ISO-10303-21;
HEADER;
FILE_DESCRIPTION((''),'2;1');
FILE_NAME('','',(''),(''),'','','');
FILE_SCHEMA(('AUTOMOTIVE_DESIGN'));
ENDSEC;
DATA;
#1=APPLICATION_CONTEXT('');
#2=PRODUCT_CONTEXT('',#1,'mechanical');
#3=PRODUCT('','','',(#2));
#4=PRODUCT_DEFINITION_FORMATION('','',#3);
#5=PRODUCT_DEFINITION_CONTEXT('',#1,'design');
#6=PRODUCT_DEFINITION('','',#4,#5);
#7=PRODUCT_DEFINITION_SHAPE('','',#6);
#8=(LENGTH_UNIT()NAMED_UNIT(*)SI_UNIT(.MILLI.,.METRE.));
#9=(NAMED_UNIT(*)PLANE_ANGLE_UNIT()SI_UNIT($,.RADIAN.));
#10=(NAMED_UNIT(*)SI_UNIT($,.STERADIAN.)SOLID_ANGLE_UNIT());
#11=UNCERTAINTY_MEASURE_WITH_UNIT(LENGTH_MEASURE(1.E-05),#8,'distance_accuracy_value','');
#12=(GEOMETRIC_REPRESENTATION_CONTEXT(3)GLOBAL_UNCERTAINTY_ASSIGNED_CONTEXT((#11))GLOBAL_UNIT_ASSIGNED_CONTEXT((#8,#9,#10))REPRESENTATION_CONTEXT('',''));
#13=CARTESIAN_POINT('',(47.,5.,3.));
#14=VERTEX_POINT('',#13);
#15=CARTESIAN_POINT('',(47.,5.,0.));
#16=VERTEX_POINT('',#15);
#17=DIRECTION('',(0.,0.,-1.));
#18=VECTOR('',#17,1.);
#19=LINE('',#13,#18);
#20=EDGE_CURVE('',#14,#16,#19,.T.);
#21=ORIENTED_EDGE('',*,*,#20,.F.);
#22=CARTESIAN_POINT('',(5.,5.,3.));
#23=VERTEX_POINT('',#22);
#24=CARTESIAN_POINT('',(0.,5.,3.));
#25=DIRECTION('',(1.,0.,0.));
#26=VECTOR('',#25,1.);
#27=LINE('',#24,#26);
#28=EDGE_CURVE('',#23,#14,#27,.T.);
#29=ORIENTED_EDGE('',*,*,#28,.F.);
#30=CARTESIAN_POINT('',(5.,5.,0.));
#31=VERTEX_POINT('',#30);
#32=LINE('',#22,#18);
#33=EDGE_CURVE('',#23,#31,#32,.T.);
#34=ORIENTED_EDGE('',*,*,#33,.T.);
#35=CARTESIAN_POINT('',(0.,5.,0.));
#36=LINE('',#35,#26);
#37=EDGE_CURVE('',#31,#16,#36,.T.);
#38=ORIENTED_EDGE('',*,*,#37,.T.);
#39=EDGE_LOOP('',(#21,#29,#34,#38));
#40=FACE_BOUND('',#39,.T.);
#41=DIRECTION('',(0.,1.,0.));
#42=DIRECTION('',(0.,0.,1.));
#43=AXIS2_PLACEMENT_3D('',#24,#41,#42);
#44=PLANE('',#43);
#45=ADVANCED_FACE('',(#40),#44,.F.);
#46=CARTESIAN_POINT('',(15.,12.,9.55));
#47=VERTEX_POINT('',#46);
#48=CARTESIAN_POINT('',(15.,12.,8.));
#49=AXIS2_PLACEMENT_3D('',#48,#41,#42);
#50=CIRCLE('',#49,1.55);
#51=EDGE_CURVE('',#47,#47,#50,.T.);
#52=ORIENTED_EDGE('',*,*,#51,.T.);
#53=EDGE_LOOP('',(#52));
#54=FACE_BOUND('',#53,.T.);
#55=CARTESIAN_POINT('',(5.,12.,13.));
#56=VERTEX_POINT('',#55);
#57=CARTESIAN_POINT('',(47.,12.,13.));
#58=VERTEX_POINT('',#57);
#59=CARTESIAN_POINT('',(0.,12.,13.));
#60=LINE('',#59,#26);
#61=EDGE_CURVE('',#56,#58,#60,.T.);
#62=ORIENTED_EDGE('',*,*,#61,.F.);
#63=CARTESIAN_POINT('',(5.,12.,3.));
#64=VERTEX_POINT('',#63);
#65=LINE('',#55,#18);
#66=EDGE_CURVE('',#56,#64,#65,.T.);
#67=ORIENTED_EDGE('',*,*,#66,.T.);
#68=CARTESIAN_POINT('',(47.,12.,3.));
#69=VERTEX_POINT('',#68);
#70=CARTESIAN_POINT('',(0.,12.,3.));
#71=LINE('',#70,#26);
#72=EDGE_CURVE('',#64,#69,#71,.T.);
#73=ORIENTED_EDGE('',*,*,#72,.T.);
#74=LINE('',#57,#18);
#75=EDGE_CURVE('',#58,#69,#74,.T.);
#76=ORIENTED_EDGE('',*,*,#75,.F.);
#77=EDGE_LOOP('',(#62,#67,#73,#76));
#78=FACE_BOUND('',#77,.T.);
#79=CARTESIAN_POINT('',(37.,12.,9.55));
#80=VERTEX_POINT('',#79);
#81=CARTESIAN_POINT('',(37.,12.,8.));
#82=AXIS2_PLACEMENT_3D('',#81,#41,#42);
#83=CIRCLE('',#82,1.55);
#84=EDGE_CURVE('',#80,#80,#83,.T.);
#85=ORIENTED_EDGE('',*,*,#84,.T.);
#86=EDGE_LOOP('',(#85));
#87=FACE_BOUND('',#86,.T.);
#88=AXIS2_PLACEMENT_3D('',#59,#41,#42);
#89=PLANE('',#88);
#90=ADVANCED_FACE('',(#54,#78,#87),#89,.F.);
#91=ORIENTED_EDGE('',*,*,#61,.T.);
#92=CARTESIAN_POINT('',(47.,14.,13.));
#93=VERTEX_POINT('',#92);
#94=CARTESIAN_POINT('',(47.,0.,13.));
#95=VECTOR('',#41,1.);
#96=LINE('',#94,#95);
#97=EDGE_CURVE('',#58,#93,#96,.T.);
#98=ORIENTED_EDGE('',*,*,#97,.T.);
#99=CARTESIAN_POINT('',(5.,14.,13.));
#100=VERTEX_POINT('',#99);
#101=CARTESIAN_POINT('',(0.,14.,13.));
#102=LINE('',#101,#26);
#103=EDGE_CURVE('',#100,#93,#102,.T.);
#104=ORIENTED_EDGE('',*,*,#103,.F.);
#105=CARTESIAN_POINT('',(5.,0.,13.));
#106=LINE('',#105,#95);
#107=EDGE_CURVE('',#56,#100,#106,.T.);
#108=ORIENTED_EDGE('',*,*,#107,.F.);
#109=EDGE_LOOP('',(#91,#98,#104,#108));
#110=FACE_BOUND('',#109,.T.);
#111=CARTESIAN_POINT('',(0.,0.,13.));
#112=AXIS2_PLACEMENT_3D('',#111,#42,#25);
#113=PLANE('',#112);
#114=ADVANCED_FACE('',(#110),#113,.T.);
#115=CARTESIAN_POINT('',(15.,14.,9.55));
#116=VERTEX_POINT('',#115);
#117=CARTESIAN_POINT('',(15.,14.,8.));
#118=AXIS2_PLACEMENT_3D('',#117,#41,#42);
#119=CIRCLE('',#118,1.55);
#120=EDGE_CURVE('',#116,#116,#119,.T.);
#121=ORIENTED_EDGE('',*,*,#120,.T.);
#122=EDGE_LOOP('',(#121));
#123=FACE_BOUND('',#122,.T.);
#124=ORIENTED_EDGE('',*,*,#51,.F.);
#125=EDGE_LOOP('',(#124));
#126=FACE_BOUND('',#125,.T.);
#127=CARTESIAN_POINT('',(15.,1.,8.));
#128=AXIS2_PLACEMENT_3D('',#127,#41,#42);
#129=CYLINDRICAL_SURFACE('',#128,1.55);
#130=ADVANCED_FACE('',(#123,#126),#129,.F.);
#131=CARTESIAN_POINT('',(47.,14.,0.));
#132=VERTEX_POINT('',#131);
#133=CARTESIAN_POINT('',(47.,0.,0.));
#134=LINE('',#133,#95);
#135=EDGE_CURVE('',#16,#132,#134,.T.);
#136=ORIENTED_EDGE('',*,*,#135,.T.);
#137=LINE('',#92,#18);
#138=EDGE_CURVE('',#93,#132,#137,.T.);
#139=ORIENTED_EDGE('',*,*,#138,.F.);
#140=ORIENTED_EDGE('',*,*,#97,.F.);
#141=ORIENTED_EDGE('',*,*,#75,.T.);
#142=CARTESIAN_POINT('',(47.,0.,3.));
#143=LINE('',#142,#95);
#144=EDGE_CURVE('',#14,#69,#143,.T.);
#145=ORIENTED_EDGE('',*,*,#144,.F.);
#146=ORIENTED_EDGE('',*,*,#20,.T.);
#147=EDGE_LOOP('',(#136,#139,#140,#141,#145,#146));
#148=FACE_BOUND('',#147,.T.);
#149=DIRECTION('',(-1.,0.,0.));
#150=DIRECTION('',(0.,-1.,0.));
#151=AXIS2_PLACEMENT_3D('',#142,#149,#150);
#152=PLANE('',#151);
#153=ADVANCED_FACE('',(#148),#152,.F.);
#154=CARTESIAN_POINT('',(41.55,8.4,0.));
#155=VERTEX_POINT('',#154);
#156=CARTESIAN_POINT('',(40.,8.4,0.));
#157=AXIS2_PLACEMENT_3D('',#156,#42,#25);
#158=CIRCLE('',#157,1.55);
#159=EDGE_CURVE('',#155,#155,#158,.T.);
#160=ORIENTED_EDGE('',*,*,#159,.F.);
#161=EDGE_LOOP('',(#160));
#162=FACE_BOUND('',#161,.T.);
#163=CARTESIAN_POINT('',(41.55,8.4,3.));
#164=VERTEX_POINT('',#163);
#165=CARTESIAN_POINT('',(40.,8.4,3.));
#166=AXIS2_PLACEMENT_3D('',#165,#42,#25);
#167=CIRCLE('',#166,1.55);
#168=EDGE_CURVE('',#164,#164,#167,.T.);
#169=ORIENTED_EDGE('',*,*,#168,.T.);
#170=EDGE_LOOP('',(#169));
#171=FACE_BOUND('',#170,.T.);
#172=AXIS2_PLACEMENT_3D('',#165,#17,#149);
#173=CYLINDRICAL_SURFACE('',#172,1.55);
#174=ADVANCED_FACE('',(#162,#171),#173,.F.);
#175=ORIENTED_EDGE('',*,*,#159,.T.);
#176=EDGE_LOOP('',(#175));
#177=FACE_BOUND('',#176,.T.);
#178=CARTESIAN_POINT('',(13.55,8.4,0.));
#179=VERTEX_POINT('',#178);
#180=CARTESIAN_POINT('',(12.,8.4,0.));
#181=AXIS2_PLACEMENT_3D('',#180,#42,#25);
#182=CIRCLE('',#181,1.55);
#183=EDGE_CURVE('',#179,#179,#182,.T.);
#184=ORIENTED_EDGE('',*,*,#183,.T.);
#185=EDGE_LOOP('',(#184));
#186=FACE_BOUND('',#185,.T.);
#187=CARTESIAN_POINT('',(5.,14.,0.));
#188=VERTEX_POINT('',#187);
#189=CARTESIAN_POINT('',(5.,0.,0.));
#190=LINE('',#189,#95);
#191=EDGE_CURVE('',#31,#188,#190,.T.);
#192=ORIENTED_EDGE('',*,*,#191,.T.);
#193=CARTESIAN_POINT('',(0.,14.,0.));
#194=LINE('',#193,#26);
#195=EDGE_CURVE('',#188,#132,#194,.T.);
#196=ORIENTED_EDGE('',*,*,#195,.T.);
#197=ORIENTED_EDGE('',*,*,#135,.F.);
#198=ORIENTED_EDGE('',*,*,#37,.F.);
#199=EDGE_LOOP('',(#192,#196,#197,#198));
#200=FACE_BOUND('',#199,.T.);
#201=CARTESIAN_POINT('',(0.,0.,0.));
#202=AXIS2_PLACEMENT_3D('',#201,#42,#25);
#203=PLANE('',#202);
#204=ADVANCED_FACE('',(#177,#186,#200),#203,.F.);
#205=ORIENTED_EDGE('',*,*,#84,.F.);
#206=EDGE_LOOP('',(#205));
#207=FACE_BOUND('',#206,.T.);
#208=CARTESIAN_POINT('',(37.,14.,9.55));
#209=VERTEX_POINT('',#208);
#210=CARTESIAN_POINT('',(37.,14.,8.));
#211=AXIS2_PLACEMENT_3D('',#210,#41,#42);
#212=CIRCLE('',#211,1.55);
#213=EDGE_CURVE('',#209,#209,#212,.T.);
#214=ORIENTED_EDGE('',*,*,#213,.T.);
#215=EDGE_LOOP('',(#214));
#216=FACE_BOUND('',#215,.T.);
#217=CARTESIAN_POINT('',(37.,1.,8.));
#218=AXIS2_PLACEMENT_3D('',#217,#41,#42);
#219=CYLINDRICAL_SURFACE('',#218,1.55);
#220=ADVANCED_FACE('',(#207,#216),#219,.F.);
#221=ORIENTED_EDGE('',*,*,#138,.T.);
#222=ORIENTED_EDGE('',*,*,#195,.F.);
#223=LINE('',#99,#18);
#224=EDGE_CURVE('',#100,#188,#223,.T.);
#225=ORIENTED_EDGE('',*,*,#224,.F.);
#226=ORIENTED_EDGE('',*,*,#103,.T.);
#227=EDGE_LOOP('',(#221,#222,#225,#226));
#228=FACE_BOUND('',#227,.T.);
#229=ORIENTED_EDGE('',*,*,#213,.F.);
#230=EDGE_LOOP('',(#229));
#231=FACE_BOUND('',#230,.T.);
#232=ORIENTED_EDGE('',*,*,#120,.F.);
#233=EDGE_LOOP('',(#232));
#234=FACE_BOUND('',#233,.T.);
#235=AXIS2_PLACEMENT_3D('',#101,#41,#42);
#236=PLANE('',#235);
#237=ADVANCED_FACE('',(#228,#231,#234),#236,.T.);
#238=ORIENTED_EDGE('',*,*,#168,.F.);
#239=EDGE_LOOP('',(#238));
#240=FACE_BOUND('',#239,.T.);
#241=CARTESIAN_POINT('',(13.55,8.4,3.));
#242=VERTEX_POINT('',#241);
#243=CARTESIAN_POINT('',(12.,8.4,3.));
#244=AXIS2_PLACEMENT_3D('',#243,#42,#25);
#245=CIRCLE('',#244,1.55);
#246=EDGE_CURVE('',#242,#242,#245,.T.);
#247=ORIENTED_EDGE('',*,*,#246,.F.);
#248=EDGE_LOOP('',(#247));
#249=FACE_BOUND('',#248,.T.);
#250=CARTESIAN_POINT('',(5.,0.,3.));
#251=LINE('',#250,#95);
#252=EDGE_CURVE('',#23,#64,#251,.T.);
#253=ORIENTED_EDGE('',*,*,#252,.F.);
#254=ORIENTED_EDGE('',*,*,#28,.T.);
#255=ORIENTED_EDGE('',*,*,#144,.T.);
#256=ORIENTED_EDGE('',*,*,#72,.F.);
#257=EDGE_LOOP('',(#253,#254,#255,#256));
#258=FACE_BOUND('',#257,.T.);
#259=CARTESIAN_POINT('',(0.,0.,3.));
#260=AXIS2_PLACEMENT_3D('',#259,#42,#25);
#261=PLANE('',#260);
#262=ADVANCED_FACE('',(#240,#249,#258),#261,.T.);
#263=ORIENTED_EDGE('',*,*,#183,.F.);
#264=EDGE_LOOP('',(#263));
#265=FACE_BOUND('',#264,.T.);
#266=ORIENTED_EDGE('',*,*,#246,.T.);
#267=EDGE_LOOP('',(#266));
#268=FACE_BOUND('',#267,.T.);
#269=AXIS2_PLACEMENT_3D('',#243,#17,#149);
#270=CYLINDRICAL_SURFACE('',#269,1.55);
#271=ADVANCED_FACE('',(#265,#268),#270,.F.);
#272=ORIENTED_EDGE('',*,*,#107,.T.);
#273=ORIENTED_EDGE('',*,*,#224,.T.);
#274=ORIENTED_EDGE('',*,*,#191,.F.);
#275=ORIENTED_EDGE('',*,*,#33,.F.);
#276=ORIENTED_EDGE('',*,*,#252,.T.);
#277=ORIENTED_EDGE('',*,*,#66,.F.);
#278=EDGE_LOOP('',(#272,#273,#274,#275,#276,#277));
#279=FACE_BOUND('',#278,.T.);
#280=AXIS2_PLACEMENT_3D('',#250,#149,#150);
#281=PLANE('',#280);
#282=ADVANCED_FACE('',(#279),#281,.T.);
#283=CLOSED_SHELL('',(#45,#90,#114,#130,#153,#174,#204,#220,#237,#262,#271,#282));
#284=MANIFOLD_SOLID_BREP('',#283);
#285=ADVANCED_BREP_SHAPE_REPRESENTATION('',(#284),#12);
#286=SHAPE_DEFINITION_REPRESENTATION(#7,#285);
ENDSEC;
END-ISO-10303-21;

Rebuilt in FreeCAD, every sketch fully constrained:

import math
import FreeCAD as App
import Part
import Sketcher
Q = App.Units.Quantity

doc = App.newDocument("Part")
params = doc.addObject("Spreadsheet::Sheet", "Params")
for row, (alias, value) in enumerate([
    ("sketch1_diameter", "3.1 mm"),
    ("sketch1_width", "42 mm"),
    ("sketch1_height", "7 mm"),
    ("pad1_length", "3 mm"),
    ("sketch2_width", "42 mm"),
    ("sketch2_height", "2 mm"),
    ("pad2_length", "13 mm"),
    ("sketch3_radius", "1.55 mm"),
    ("pocket1_length", "13 mm"),
], start=1):
    params.set(f"A{row}", alias)
    params.set(f"B{row}", "=" + value)
    params.setAlias(f"B{row}", alias)

body = doc.addObject("PartDesign::Body", "Body")

# Sketch on XY plane
sketch1 = body.newObject("Sketcher::SketchObject", "Sketch")
sketch1.AttachmentSupport = (doc.getObject("XY_Plane"), [""])
sketch1.MapMode = "FlatFace"
sketch1.addGeometry([
    Part.LineSegment(App.Vector(5, 12, 0), App.Vector(5, 5, 0)),  # 0
    Part.LineSegment(App.Vector(5, 5, 0), App.Vector(47, 5, 0)),  # 1
    Part.LineSegment(App.Vector(47, 5, 0), App.Vector(47, 12, 0)),  # 2
    Part.LineSegment(App.Vector(47, 12, 0), App.Vector(5, 12, 0)),  # 3
    Part.Circle(App.Vector(12, 8.4, 0), App.Vector(0, 0, 1), 1.6),  # 4
    Part.Circle(App.Vector(40, 8.4, 0), App.Vector(0, 0, 1), 1.6),  # 5
], False)
sketch1.addConstraint([
    Sketcher.Constraint("Coincident", 0, 2, 1, 1),
    Sketcher.Constraint("Coincident", 1, 2, 2, 1),
    Sketcher.Constraint("Coincident", 2, 2, 3, 1),
    Sketcher.Constraint("Coincident", 3, 2, 0, 1),
    Sketcher.Constraint("Vertical", 0),
    Sketcher.Constraint("Horizontal", 1),
    Sketcher.Constraint("Vertical", 2),
    Sketcher.Constraint("Horizontal", 3),
    Sketcher.Constraint("Equal", 4, 5),
    Sketcher.Constraint("Horizontal", 4, 3, 5, 3),
    Sketcher.Constraint("Diameter", 4, Q("3.1 mm")),
    Sketcher.Constraint("DistanceX", 1, 1, 1, 2, Q("42 mm")),
    Sketcher.Constraint("DistanceY", 0, 2, 0, 1, Q("7 mm")),
    Sketcher.Constraint("DistanceX", -1, 1, 4, 3, Q("12 mm")),
    Sketcher.Constraint("DistanceX", -1, 1, 5, 3, Q("40 mm")),
    Sketcher.Constraint("DistanceX", -1, 1, 0, 2, Q("5 mm")),
    Sketcher.Constraint("DistanceY", -1, 1, 0, 2, Q("5 mm")),
    Sketcher.Constraint("DistanceY", -1, 1, 4, 3, Q("8.4 mm")),
])
sketch1.setExpression("Constraints[10]", "Params.sketch1_diameter")
sketch1.setExpression("Constraints[11]", "Params.sketch1_width")
sketch1.setExpression("Constraints[12]", "Params.sketch1_height")
pad1 = body.newObject("PartDesign::Pad", "Pad")
pad1.Profile = sketch1
pad1.setExpression("Length", "Params.pad1_length")

# Sketch on XY plane
sketch2 = body.newObject("Sketcher::SketchObject", "Sketch001")
sketch2.AttachmentSupport = (doc.getObject("XY_Plane"), [""])
sketch2.MapMode = "FlatFace"
sketch2.addGeometry([
    Part.LineSegment(App.Vector(5, 14, 0), App.Vector(5, 12, 0)),
    Part.LineSegment(App.Vector(5, 12, 0), App.Vector(47, 12, 0)),
    Part.LineSegment(App.Vector(47, 12, 0), App.Vector(47, 14, 0)),
    Part.LineSegment(App.Vector(47, 14, 0), App.Vector(5, 14, 0)),
], False)
sketch2.addConstraint([
    Sketcher.Constraint("Coincident", 0, 2, 1, 1),
    Sketcher.Constraint("Coincident", 1, 2, 2, 1),
    Sketcher.Constraint("Coincident", 2, 2, 3, 1),
    Sketcher.Constraint("Coincident", 3, 2, 0, 1),
    Sketcher.Constraint("Vertical", 0),
    Sketcher.Constraint("Horizontal", 1),
    Sketcher.Constraint("Vertical", 2),
    Sketcher.Constraint("Horizontal", 3),
    Sketcher.Constraint("DistanceX", 1, 1, 1, 2, Q("42 mm")),
    Sketcher.Constraint("DistanceY", 0, 2, 0, 1, Q("2 mm")),
    Sketcher.Constraint("DistanceX", -1, 1, 0, 2, Q("5 mm")),
    Sketcher.Constraint("DistanceY", -1, 1, 0, 2, Q("12 mm")),
])
sketch2.setExpression("Constraints[8]", "Params.sketch2_width")
sketch2.setExpression("Constraints[9]", "Params.sketch2_height")
pad2 = body.newObject("PartDesign::Pad", "Pad001")
pad2.Profile = sketch2
pad2.setExpression("Length", "Params.pad2_length")

# Sketch on XZ plane
sketch3 = body.newObject("Sketcher::SketchObject", "Sketch002")
sketch3.AttachmentSupport = (doc.getObject("XZ_Plane"), [""])
sketch3.MapMode = "FlatFace"
sketch3.AttachmentOffset = App.Placement(App.Vector(0, 0, -14), App.Rotation())
sketch3.addGeometry([
    Part.ArcOfCircle(Part.Circle(App.Vector(15, 8, 0), App.Vector(0, 0, 1), 1.6), math.radians(90), math.radians(270)),  # 0
    Part.ArcOfCircle(Part.Circle(App.Vector(15, 8, 0), App.Vector(0, 0, 1), 1.5), math.radians(0), math.radians(90)),  # 1
    Part.ArcOfCircle(Part.Circle(App.Vector(15, 8, 0), App.Vector(0, 0, 1), 1.5), math.radians(-90), math.radians(0)),  # 2
    Part.ArcOfCircle(Part.Circle(App.Vector(37, 8, 0), App.Vector(0, 0, 1), 1.6), math.radians(90), math.radians(270)),  # 3
    Part.ArcOfCircle(Part.Circle(App.Vector(37, 8, 0), App.Vector(0, 0, 1), 1.5), math.radians(0), math.radians(90)),  # 4
    Part.ArcOfCircle(Part.Circle(App.Vector(37, 8, 0), App.Vector(0, 0, 1), 1.5), math.radians(-90), math.radians(0)),  # 5
], False)
sketch3.addConstraint([
    Sketcher.Constraint("Tangent", 0, 1, 1, 2),
    Sketcher.Constraint("Tangent", 1, 1, 2, 2),
    Sketcher.Constraint("Tangent", 2, 1, 0, 2),
    Sketcher.Constraint("Tangent", 3, 1, 4, 2),
    Sketcher.Constraint("Tangent", 4, 1, 5, 2),
    Sketcher.Constraint("Tangent", 5, 1, 3, 2),
    Sketcher.Constraint("Equal", 2, 3),
    Sketcher.Constraint("Horizontal", 2, 3, 3, 3),
    Sketcher.Constraint("Horizontal", 5, 3, 1, 1),
    Sketcher.Constraint("Horizontal", 1, 1, 4, 1),
    Sketcher.Constraint("Vertical", 2, 3, 0, 1),
    Sketcher.Constraint("Vertical", 0, 1, 2, 1),
    Sketcher.Constraint("Vertical", 5, 3, 3, 1),
    Sketcher.Constraint("Vertical", 3, 1, 5, 1),
    Sketcher.Constraint("Radius", 0, Q("1.55 mm")),
    Sketcher.Constraint("DistanceX", -1, 1, 0, 3, Q("15 mm")),
    Sketcher.Constraint("DistanceY", -1, 1, 0, 3, Q("8 mm")),
    Sketcher.Constraint("DistanceX", -1, 1, 3, 3, Q("37 mm")),
])
sketch3.setExpression("Constraints[14]", "Params.sketch3_radius")
pocket1 = body.newObject("PartDesign::Pocket", "Pocket")
pocket1.Profile = sketch3
pocket1.setExpression("Length", "Params.pocket1_length")
pocket1.Reversed = True

doc.recompute()
